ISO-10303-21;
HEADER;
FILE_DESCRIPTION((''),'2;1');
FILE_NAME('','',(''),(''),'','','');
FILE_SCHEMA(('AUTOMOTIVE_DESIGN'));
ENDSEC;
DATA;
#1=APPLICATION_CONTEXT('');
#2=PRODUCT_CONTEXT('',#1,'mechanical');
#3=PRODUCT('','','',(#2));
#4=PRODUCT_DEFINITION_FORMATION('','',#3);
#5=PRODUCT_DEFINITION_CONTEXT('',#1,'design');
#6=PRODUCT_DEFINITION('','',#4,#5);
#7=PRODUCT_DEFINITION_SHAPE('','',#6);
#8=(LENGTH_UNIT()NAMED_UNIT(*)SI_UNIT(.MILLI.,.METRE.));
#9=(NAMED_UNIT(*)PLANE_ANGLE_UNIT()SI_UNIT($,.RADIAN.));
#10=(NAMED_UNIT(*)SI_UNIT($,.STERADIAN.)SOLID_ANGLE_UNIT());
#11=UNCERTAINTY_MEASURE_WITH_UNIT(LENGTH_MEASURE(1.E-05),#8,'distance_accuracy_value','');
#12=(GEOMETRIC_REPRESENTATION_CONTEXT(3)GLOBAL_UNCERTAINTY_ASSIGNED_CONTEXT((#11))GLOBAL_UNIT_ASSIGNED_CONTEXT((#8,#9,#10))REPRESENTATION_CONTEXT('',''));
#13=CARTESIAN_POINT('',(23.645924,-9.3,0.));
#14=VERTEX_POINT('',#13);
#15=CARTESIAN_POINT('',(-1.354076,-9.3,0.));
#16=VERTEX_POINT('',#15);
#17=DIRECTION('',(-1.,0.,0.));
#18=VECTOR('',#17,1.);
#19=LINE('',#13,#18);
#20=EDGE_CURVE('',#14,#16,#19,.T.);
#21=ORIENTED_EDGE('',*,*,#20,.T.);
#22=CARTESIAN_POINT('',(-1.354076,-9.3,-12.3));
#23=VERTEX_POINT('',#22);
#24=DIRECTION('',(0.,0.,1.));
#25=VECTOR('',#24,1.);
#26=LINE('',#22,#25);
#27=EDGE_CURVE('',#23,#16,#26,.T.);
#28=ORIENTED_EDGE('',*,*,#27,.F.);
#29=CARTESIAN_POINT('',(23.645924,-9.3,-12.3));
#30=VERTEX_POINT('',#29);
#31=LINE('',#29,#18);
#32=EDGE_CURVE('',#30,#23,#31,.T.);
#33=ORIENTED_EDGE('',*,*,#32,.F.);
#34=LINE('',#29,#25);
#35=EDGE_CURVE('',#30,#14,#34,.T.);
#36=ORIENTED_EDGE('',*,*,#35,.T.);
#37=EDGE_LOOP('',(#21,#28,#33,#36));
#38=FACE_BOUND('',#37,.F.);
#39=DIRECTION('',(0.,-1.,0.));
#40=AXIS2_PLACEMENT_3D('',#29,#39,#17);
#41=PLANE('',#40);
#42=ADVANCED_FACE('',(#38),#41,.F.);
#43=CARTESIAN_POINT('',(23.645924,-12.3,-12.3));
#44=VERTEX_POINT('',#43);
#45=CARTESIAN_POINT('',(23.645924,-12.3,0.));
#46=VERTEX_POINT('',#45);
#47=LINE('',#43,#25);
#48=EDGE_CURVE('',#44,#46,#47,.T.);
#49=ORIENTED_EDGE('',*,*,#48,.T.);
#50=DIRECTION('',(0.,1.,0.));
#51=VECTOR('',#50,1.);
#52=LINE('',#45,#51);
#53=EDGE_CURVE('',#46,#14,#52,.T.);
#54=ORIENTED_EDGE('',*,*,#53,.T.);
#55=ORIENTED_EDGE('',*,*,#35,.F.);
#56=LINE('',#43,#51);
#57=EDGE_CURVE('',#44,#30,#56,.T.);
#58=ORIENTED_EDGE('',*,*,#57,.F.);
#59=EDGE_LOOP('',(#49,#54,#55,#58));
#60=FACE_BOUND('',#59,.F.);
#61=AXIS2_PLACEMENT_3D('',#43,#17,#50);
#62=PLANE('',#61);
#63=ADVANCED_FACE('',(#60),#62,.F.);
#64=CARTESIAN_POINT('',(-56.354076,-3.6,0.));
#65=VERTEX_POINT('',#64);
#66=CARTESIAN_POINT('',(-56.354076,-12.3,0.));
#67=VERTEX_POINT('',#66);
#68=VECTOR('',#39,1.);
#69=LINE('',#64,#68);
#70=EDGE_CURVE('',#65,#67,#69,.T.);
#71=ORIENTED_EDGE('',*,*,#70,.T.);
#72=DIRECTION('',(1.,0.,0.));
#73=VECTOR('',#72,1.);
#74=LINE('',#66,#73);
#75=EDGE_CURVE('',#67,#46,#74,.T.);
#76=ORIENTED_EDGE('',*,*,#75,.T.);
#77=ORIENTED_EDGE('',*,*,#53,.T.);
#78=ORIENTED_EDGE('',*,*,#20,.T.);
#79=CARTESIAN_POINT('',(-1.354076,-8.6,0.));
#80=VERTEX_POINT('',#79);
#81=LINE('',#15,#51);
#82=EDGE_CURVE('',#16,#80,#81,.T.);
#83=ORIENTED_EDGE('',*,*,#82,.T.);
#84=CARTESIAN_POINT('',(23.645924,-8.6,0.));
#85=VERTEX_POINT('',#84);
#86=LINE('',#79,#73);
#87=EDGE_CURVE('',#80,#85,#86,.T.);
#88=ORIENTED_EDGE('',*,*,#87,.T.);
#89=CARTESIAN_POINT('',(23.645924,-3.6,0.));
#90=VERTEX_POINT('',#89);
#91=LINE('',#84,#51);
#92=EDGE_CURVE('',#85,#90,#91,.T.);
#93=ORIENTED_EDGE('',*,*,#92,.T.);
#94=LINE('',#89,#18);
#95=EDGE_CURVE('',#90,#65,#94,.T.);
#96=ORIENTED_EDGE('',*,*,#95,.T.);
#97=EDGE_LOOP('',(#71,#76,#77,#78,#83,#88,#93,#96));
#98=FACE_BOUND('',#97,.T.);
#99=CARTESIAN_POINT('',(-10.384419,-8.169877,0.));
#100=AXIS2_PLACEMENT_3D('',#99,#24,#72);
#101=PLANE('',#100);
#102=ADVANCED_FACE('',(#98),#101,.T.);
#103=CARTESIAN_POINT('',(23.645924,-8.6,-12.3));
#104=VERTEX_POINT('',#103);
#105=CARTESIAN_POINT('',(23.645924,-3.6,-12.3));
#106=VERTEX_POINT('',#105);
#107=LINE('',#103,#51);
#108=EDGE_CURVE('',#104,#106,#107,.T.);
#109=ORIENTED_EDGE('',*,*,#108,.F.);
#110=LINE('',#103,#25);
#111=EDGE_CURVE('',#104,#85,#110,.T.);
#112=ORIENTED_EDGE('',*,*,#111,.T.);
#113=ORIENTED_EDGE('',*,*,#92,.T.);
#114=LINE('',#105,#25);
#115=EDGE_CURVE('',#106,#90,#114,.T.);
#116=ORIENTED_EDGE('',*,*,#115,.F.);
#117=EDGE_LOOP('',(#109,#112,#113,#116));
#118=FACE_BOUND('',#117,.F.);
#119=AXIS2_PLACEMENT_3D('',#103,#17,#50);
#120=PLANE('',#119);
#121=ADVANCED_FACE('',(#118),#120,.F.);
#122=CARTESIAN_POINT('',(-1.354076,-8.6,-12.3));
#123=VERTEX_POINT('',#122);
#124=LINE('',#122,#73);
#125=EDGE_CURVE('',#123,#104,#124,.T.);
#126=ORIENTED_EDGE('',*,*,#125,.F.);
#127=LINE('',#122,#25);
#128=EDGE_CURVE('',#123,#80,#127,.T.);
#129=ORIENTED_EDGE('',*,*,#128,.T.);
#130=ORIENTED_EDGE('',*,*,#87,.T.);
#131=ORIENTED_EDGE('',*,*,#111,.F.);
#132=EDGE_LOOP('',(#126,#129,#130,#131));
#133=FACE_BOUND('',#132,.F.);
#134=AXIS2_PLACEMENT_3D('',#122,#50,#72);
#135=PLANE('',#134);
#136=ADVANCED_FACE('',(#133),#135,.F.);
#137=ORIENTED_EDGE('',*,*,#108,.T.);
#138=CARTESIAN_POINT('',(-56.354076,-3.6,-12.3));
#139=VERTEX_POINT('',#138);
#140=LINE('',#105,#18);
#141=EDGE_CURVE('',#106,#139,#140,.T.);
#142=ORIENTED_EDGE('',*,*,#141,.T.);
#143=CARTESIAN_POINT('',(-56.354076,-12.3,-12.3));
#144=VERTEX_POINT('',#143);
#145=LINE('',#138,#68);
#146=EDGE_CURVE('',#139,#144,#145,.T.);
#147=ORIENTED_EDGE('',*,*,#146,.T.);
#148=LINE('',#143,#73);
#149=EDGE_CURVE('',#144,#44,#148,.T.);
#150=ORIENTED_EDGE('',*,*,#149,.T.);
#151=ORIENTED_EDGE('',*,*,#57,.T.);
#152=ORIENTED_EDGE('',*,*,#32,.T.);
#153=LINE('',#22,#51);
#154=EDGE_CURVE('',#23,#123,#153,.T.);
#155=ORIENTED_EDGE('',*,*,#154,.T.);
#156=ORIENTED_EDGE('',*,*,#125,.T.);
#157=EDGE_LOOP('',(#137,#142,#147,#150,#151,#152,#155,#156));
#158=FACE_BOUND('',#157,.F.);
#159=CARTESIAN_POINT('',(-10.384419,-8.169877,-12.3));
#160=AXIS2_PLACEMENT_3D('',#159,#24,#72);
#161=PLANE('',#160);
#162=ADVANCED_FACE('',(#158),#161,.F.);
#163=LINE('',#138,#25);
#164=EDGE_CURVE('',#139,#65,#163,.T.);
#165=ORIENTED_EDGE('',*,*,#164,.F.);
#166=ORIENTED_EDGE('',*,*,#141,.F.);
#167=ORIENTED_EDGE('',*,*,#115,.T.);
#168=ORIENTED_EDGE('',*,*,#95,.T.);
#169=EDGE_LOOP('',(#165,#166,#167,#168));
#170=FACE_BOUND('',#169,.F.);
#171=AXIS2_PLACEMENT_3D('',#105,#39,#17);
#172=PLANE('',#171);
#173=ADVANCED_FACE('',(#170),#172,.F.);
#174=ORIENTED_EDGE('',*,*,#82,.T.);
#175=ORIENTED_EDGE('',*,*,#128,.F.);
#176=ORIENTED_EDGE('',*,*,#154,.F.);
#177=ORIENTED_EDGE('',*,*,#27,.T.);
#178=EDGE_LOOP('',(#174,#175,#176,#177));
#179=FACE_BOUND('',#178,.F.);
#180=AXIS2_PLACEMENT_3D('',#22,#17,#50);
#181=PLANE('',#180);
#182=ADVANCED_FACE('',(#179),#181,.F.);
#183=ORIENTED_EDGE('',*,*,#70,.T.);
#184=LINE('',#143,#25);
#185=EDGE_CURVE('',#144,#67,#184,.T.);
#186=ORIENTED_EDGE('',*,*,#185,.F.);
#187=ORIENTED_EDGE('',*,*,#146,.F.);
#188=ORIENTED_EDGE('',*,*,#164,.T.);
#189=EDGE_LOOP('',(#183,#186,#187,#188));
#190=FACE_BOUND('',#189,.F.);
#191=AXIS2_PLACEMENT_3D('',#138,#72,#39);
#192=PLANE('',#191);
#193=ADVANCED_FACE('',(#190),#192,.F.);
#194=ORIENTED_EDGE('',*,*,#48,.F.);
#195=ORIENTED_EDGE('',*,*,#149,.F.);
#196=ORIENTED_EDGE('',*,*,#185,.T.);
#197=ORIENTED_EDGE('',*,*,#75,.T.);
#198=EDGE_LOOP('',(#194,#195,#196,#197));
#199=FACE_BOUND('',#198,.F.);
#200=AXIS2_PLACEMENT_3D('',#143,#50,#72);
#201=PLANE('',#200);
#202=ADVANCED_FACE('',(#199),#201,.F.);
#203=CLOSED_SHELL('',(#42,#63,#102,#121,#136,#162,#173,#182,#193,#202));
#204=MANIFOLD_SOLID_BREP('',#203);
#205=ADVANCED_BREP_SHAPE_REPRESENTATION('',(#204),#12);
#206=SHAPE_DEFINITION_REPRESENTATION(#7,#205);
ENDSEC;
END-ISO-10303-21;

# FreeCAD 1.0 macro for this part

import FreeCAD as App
import Part
import Sketcher
from FreeCAD import Vector
Q = App.Units.Quantity


def add_polygon(sketch, points):
    """Adds a closed chain of lines whose ends are joined by coincident constraints."""
    first, n = sketch.GeometryCount, len(points)
    for a, b in zip(points, points[1:] + points[:1]):
        sketch.addGeometry(Part.LineSegment(App.Vector(*a, 0), App.Vector(*b, 0)), False)
    for i in range(n):
        sketch.addConstraint(Sketcher.Constraint("Coincident", first + i, 2, first + (i + 1) % n, 1))

doc = App.newDocument("Part")
body = doc.addObject("PartDesign::Body", "Body")

# Sketch on XZ plane
sketch1 = body.newObject("Sketcher::SketchObject", "Sketch")
sketch1.AttachmentSupport = (doc.getObject("XZ_Plane"), [""])
sketch1.MapMode = "FlatFace"
add_polygon(sketch1, [(-56.4, 8.7), (-56.4, 0), (23.6, 0), (23.6, 3), (-1.4, 3), (-1.4, 3.7), (23.6, 3.7), (23.6, 8.7)])  # lines 0-7
sketch1.addConstraint([
    Sketcher.Constraint("Vertical", 0),
    Sketcher.Constraint("Horizontal", 1),
    Sketcher.Constraint("Vertical", 2),
    Sketcher.Constraint("Horizontal", 3),
    Sketcher.Constraint("Vertical", 4),
    Sketcher.Constraint("Horizontal", 5),
    Sketcher.Constraint("Vertical", 6),
    Sketcher.Constraint("Horizontal", 7),
    Sketcher.Constraint("PointOnObject", 0, 2, -1),
    Sketcher.Constraint("Vertical", 2, 2, 5, 2),
    Sketcher.Constraint("DistanceX", 1, 1, 1, 2, Q("80 mm")),
    Sketcher.Constraint("DistanceX", 3, 2, 3, 1, Q("25 mm")),
    Sketcher.Constraint("DistanceY", 2, 1, 2, 2, Q("3 mm")),
    Sketcher.Constraint("DistanceY", 6, 1, 6, 2, Q("5 mm")),
    Sketcher.Constraint("DistanceY", 0, 2, 0, 1, Q("8.7 mm")),
    Sketcher.Constraint("DistanceX", 0, 2, -1, 1, Q("56.354076 mm")),
])
pad1 = body.newObject("PartDesign::Pad", "Pad")
pad1.Profile = sketch1
pad1.Length = 12.3
body2 = doc.addObject("PartDesign::Body", "Body001")
doc.recompute()

body.Placement = App.Placement(Vector(0, -12.3, -12.3), App.Rotation(Vector(-1, 0, 0), 90))
boolean = body2.newObject("PartDesign::Boolean", "Boolean")
boolean.Type = "Fuse"
boolean.addObjects([body])

doc.recompute()
